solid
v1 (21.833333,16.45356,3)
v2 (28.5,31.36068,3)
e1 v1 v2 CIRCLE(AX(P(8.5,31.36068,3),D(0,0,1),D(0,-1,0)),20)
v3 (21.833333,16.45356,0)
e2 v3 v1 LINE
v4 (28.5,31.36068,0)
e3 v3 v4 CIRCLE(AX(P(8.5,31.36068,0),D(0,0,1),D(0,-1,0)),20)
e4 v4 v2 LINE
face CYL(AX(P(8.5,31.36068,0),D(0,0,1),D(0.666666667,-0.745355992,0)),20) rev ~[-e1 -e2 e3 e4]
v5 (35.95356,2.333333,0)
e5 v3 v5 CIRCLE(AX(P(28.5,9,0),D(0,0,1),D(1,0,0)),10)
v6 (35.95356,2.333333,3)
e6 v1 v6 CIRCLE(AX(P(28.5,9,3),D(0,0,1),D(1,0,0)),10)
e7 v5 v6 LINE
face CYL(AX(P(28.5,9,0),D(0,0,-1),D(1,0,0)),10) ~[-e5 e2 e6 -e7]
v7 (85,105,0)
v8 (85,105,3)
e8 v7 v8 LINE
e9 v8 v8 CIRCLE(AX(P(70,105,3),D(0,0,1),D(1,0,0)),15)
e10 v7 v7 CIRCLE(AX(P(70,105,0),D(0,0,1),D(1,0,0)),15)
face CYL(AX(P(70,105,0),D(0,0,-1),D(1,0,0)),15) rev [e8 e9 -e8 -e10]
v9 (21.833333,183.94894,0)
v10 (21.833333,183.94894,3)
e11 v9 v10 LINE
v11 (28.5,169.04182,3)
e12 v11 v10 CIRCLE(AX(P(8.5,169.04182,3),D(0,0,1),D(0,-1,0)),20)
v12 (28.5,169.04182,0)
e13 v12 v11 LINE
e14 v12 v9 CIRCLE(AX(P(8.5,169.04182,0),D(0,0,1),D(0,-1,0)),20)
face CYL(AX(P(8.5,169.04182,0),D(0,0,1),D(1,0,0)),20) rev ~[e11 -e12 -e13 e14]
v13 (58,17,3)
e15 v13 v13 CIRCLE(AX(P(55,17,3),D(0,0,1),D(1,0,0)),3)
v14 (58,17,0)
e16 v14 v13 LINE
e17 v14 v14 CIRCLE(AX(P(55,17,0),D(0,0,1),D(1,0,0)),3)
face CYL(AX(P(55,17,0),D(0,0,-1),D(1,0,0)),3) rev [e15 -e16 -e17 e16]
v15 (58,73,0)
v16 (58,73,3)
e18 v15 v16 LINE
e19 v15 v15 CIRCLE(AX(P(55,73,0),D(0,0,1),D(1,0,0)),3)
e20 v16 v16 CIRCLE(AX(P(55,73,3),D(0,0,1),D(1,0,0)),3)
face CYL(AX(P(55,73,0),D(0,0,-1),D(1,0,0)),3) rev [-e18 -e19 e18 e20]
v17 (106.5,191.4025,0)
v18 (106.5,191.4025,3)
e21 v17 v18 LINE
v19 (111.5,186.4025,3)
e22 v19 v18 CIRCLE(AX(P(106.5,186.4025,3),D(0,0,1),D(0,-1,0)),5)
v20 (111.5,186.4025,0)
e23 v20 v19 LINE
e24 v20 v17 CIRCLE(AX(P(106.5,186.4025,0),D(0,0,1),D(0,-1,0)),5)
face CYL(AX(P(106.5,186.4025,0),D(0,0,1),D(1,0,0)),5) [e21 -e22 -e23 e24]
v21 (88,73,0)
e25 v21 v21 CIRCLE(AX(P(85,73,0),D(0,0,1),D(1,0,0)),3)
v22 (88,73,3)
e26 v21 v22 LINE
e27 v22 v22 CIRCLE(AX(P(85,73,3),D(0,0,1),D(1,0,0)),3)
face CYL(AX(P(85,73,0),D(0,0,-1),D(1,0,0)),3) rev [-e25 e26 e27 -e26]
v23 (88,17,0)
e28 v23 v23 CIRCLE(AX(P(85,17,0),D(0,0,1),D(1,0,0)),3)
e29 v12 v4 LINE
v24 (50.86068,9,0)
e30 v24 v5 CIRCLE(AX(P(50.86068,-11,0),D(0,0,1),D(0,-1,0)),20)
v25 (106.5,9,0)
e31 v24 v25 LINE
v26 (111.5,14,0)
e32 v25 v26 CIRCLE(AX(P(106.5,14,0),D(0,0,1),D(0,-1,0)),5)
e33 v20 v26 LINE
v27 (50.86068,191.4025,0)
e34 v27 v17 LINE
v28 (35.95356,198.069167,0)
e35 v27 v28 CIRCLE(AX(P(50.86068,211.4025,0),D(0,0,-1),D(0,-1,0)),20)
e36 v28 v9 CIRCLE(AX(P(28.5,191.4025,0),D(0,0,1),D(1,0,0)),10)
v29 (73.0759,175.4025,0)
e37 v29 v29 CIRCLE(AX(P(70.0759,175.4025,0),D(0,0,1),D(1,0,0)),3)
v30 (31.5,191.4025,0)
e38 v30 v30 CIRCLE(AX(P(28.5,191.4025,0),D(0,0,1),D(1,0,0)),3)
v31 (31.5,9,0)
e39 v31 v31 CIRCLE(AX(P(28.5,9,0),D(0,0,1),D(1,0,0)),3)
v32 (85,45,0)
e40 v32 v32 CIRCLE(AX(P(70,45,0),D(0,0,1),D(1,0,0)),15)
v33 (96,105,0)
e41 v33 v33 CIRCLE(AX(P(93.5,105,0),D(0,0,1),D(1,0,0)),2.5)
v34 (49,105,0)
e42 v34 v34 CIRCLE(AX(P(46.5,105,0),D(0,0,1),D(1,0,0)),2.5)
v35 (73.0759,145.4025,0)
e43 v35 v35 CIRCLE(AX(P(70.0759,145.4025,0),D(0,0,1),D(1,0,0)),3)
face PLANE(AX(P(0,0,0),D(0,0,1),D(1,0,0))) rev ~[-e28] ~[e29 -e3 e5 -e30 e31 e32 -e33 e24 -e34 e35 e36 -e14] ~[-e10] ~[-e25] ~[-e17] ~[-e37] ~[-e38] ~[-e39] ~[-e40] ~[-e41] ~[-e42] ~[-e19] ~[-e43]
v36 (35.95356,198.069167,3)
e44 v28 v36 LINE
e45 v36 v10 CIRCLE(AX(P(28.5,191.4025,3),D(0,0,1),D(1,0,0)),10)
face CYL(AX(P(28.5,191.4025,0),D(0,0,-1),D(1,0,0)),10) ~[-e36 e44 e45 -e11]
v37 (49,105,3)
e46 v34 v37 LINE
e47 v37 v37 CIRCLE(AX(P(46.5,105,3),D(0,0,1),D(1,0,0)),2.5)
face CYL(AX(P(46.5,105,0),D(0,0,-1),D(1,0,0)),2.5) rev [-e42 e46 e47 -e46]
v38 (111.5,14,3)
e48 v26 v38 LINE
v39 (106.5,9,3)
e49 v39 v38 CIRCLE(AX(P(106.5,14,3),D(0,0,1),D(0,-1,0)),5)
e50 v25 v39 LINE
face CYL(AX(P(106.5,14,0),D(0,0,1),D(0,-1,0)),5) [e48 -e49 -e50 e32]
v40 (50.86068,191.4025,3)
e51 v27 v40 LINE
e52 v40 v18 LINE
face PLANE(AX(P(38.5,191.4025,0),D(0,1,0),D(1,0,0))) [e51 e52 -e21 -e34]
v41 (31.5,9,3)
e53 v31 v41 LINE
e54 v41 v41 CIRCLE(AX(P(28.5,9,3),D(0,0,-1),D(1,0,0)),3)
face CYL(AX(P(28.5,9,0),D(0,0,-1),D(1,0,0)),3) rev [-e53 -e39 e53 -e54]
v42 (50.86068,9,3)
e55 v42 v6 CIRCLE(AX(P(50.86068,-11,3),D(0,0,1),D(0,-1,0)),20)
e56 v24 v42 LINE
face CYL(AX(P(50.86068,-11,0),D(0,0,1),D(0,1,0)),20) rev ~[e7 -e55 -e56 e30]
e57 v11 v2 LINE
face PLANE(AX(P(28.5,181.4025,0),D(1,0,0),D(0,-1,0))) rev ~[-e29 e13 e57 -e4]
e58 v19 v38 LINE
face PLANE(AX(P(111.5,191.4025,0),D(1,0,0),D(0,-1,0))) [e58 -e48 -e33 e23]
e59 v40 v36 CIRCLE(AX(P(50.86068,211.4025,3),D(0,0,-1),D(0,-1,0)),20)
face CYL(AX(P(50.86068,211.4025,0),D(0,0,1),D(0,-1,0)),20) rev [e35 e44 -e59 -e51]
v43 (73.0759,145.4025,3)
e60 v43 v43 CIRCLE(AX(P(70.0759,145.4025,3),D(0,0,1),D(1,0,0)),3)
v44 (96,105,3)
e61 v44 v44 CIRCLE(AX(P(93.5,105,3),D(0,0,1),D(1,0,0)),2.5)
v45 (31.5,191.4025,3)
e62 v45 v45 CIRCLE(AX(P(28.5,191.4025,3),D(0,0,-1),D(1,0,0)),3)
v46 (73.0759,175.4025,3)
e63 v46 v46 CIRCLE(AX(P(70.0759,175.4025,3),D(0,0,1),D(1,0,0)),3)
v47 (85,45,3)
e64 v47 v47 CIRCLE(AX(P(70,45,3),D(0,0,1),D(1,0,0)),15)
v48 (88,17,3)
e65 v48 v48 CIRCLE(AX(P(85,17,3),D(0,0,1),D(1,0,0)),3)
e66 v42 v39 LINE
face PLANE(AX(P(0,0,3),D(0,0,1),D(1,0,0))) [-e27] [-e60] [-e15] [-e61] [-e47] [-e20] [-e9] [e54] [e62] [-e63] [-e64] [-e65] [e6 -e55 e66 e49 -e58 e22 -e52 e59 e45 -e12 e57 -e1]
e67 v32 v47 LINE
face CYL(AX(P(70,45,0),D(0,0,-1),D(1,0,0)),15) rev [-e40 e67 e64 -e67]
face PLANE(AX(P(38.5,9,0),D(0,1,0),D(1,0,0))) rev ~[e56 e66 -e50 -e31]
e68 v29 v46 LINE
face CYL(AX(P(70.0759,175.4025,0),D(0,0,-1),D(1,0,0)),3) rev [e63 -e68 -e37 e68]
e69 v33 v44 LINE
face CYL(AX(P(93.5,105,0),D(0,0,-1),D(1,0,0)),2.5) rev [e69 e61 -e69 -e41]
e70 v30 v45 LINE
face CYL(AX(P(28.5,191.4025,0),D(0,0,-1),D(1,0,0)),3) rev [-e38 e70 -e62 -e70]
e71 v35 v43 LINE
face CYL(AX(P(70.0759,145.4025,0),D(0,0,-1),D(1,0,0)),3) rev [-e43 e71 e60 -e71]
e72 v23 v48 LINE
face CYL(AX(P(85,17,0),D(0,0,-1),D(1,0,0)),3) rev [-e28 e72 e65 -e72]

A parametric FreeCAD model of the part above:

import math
import FreeCAD as App
import Part
import Sketcher
from FreeCAD import Vector


def edges_at(feature, points):
    """Names of the edges that pass closest to the given points."""
    edges = feature.Shape.Edges
    near = lambda p: min(range(len(edges)), key=lambda i: edges[i].distToShape(Part.Vertex(*p))[0])
    return sorted({f"Edge{near(p) + 1}" for p in points})

doc = App.newDocument("Part")
body = doc.addObject("PartDesign::Body", "Body")

sketch1 = body.newObject("Sketcher::SketchObject", "Sketch")
sketch1.AttachmentSupport = (doc.getObject("XY_Plane"), [""])
sketch1.MapMode = "FlatFace"
sketch1.addGeometry([
    Part.LineSegment(Vector(111.5, 191.4, 0), Vector(38.5, 191.4, 0)),
    Part.ArcOfCircle(Part.Circle(Vector(28.5, 191.4, 0), Vector(0, 0, 1), 10), math.radians(0), math.radians(270)),
    Part.LineSegment(Vector(28.5, 181.4, 0), Vector(28.5, 19, 0)),
    Part.ArcOfCircle(Part.Circle(Vector(28.5, 9, 0), Vector(0, 0, 1), 10), math.radians(90), math.radians(360)),
    Part.LineSegment(Vector(38.5, 9, 0), Vector(111.5, 9, 0)),
    Part.LineSegment(Vector(111.5, 9, 0), Vector(111.5, 191.4, 0)),
    Part.Circle(Vector(55, 17, 0), Vector(0, 0, 1), 3),
    Part.Circle(Vector(55, 73, 0), Vector(0, 0, 1), 3),
    Part.Circle(Vector(85, 17, 0), Vector(0, 0, 1), 3),
    Part.Circle(Vector(70, 45, 0), Vector(0, 0, 1), 15),
    Part.Circle(Vector(85, 73, 0), Vector(0, 0, 1), 3),
    Part.Circle(Vector(28.5, 191.4, 0), Vector(0, 0, 1), 3),
    Part.Circle(Vector(28.5, 9, 0), Vector(0, 0, 1), 3),
    Part.Circle(Vector(70.1, 145.4, 0), Vector(0, 0, 1), 3),
    Part.Circle(Vector(70.1, 175.4, 0), Vector(0, 0, 1), 3),
    Part.Circle(Vector(93.5, 105, 0), Vector(0, 0, 1), 2.5),
    Part.Circle(Vector(46.5, 105, 0), Vector(0, 0, 1), 2.5),
    Part.Circle(Vector(70, 105, 0), Vector(0, 0, 1), 15),
], False)
sketch1.addConstraint([
    Sketcher.Constraint("Coincident", 0, 2, 1, 1),
    Sketcher.Constraint("Coincident", 1, 2, 2, 1),
    Sketcher.Constraint("Coincident", 2, 2, 3, 1),
    Sketcher.Constraint("Coincident", 3, 2, 4, 1),
    Sketcher.Constraint("Coincident", 4, 2, 5, 1),
    Sketcher.Constraint("Coincident", 5, 2, 0, 1),
    Sketcher.Constraint("Horizontal", 0),
    Sketcher.Constraint("Vertical", 2),
    Sketcher.Constraint("Horizontal", 4),
    Sketcher.Constraint("Vertical", 5),
    Sketcher.Constraint("Coincident", 11, 3, 1, 3),
    Sketcher.Constraint("Coincident", 12, 3, 3, 3),
    Sketcher.Constraint("Equal", 1, 3),
    Sketcher.Constraint("Equal", 6, 7),
    Sketcher.Constraint("Equal", 7, 8),
    Sketcher.Constraint("Equal", 8, 10),
    Sketcher.Constraint("Equal", 10, 11),
    Sketcher.Constraint("Equal", 11, 12),
    Sketcher.Constraint("Equal", 12, 13),
    Sketcher.Constraint("Equal", 13, 14),
    Sketcher.Constraint("Equal", 15, 16),
    Sketcher.Constraint("Equal", 9, 17),
    Sketcher.Constraint("Horizontal", 6, 3, 8, 3),
    Sketcher.Constraint("Horizontal", 7, 3, 10, 3),
    Sketcher.Constraint("Horizontal", 15, 3, 16, 3),
    Sketcher.Constraint("Horizontal", 16, 3, 17, 3),
    Sketcher.Constraint("Horizontal", 11, 3, 0, 2),
    Sketcher.Constraint("Horizontal", 12, 3, 3, 2),
    Sketcher.Constraint("Vertical", 1, 3, 3, 3),
    Sketcher.Constraint("Vertical", 6, 3, 7, 3),
    Sketcher.Constraint("Vertical", 8, 3, 10, 3),
    Sketcher.Constraint("Vertical", 13, 3, 14, 3),
    Sketcher.Constraint("Vertical", 9, 3, 17, 3),
    Sketcher.Constraint("Vertical", 12, 3, 1, 2),
    Sketcher.Constraint("Diameter", 6, 6.0),
    Sketcher.Constraint("Diameter", 9, 30.0),
    Sketcher.Constraint("Diameter", 15, 5.0),
    Sketcher.Constraint("Radius", 1, 10.0),
    Sketcher.Constraint("DistanceX", -1, 1, 9, 3, 70.0),
    Sketcher.Constraint("DistanceY", -1, 1, 9, 3, 45.0),
    Sketcher.Constraint("DistanceX", 6, 3, 8, 3, 30.0),
    Sketcher.Constraint("DistanceX", 6, 3, 9, 3, 15.0),
    Sketcher.Constraint("DistanceY", 13, 3, 14, 3, 30.0),
    Sketcher.Constraint("DistanceY", 9, 3, 15, 3, 60.0),
    Sketcher.Constraint("DistanceY", 14, 3, 1, 2, 6.0),
    Sketcher.Constraint("DistanceX", 0, 2, 0, 1, 73.0),
    Sketcher.Constraint("DistanceY", -1, 1, 3, 3, 9.0),
    Sketcher.Constraint("DistanceY", -1, 1, 6, 3, 17.0),
    Sketcher.Constraint("DistanceY", -1, 1, 7, 3, 73.0),
    Sketcher.Constraint("DistanceX", 16, 3, 15, 3, 47.0),
    Sketcher.Constraint("DistanceX", 0, 2, 16, 3, 8.0),
    Sketcher.Constraint("DistanceX", -1, 1, 1, 3, 28.5),
    Sketcher.Constraint("DistanceY", 2, 2, 2, 1, 162.4025),
    Sketcher.Constraint("DistanceX", -1, 1, 13, 3, 70.076),
])
pad1 = body.newObject("PartDesign::Pad", "Pad")
pad1.Profile = sketch1
pad1.Length = 3
doc.recompute()

fillet = body.newObject("PartDesign::Fillet", "Fillet")
fillet.Base = (pad1, edges_at(pad1, [(38.5, 191.403, 1.5), (28.5, 181.403, 1.5)]))
fillet.Radius = 20
doc.recompute()

fillet2 = body.newObject("PartDesign::Fillet", "Fillet001")
fillet2.Base = (fillet, edges_at(fillet, [(38.5, 9, 1.5), (28.5, 19, 1.5)]))
fillet2.Radius = 20
doc.recompute()

fillet3 = body.newObject("PartDesign::Fillet", "Fillet002")
fillet3.Base = (fillet2, edges_at(fillet2, [(111.5, 191.403, 1.5), (111.5, 9, 1.5)]))
fillet3.Radius = 5

doc.recompute()
